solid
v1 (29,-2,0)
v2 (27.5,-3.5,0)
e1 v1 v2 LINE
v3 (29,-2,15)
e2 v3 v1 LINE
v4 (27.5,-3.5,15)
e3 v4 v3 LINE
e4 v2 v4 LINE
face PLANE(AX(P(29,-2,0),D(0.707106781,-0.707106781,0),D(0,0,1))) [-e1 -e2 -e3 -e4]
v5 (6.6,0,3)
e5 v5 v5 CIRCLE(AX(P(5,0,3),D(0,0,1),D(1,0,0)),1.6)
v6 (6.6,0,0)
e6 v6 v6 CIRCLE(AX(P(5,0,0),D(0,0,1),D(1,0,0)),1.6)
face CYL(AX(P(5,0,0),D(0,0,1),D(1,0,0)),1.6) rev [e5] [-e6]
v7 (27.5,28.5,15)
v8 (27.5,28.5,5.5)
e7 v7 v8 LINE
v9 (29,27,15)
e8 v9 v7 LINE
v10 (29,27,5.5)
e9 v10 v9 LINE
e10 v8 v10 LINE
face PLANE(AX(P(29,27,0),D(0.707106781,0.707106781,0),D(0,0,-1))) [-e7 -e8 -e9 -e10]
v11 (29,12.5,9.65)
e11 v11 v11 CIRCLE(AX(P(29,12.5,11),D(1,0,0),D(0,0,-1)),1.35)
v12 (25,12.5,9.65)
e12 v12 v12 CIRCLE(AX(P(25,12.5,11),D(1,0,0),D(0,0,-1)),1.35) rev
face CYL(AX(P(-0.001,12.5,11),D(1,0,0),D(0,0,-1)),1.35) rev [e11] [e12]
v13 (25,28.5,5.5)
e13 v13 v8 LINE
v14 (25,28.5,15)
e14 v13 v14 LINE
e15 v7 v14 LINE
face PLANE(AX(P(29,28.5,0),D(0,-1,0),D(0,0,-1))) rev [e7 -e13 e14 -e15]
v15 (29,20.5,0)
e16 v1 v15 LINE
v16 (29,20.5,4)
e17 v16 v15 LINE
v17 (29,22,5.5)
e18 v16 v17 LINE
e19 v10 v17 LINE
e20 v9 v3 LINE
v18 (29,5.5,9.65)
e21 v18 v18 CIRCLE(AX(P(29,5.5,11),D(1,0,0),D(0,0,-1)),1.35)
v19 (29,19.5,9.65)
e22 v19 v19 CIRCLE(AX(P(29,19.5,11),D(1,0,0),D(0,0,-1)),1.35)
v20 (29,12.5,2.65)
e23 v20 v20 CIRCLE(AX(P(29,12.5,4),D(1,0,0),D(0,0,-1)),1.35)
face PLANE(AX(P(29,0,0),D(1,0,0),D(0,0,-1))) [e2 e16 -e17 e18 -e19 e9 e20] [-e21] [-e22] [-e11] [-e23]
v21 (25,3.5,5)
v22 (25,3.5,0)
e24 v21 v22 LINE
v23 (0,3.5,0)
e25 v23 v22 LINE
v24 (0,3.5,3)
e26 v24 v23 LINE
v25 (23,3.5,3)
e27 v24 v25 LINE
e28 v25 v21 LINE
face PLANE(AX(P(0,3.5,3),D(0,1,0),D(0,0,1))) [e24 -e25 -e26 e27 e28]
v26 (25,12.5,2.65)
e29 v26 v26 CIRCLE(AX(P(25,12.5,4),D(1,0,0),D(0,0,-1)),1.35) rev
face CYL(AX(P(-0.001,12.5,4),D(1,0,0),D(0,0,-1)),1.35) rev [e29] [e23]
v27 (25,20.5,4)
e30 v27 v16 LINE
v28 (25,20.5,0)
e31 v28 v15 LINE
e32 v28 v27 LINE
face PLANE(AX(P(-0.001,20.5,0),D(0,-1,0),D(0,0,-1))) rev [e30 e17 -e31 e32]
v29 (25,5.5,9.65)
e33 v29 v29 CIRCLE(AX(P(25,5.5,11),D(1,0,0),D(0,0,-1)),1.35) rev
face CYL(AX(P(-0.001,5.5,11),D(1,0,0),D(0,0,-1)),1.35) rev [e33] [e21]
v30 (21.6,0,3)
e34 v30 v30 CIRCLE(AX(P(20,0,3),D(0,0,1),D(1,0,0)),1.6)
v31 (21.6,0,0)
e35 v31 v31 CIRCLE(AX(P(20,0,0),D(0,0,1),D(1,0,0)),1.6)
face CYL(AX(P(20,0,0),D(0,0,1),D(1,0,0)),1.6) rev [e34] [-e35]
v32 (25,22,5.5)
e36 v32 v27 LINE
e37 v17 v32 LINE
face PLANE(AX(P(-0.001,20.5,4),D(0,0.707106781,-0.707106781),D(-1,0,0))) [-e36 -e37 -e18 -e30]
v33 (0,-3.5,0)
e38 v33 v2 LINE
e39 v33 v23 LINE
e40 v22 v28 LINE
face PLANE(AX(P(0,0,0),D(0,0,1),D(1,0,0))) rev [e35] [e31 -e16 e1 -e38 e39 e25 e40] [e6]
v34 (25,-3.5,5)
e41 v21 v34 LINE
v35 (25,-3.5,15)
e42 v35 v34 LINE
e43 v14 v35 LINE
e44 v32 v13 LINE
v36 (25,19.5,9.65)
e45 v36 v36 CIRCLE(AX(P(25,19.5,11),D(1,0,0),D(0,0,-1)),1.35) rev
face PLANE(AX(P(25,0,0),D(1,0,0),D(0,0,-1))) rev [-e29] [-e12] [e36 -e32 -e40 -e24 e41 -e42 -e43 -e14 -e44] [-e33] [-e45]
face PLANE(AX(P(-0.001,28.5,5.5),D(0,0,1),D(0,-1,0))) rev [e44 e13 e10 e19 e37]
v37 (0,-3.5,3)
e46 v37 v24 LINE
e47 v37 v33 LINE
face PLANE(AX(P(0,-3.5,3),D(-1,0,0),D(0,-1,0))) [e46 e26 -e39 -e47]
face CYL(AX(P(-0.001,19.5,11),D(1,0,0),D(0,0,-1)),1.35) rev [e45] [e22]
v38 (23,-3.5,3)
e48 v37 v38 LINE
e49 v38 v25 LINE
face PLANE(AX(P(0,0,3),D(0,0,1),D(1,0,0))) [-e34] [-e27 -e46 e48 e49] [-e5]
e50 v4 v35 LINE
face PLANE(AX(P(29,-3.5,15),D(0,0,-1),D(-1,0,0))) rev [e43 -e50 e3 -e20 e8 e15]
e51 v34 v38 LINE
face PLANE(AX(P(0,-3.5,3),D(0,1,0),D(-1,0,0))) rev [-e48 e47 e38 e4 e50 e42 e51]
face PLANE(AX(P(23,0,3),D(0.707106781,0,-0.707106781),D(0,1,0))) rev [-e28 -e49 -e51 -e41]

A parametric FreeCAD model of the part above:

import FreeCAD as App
import Part
import Sketcher

V = App.Vector


def edges_at(feature, points):
    """Names of the edges that pass closest to the given points."""
    edges = feature.Shape.Edges
    near = lambda p: min(range(len(edges)), key=lambda i: edges[i].distToShape(Part.Vertex(*p))[0])
    return sorted({f"Edge{near(p) + 1}" for p in points})

doc = App.newDocument("Part")
params = doc.addObject("Spreadsheet::Sheet", "Params")
for row, (alias, value) in enumerate([
    ("sketch1_width", "25 mm"),
    ("sketch1_height", "7 mm"),
    ("pad1_length", "3 mm"),
    ("sketch2_width", "32 mm"),
    ("sketch2_height", "15 mm"),
    ("pad2_length", "4 mm"),
    ("sketch3_diameter", "3.2 mm"),
    ("sketch4_width", "8 mm"),
    ("sketch4_height", "5.5 mm"),
    ("sketch5_diameter", "2.7 mm"),
    ("sketch6_diameter", "2.7 mm"),
    ("sketch7_diameter", "2.7 mm"),
    ("sketch8_diameter", "2.7 mm"),
    ("chamfer_size", "1.5 mm"),
    ("chamfer2_size", "2 mm"),
], start=1):
    params.set(f"A{row}", alias)
    params.set(f"B{row}", "=" + value)
    params.setAlias(f"B{row}", alias)

body = doc.addObject("PartDesign::Body", "Body")

# Sketch on XY plane
sketch1 = body.newObject("Sketcher::SketchObject", "Sketch")
sketch1.AttachmentSupport = (doc.getObject("XY_Plane"), [""])
sketch1.MapMode = "FlatFace"
sketch1.addGeometry(Part.LineSegment(V(0, 4, 0), V(0, -4, 0)), False)
sketch1.addGeometry(Part.LineSegment(V(0, -4, 0), V(25, -4, 0)), False)
sketch1.addGeometry(Part.LineSegment(V(25, -4, 0), V(25, 4, 0)), False)
sketch1.addGeometry(Part.LineSegment(V(25, 4, 0), V(0, 4, 0)), False)
sketch1.addConstraint(Sketcher.Constraint("Coincident", 0, 2, 1, 1))
sketch1.addConstraint(Sketcher.Constraint("Coincident", 1, 2, 2, 1))
sketch1.addConstraint(Sketcher.Constraint("Coincident", 2, 2, 3, 1))
sketch1.addConstraint(Sketcher.Constraint("Coincident", 3, 2, 0, 1))
sketch1.addConstraint(Sketcher.Constraint("Vertical", 0))
sketch1.addConstraint(Sketcher.Constraint("Horizontal", 1))
sketch1.addConstraint(Sketcher.Constraint("Vertical", 2))
sketch1.addConstraint(Sketcher.Constraint("Horizontal", 3))
sketch1.addConstraint(Sketcher.Constraint("Symmetric", 0, 2, 3, 2, -1, 1))
sketch1.addConstraint(Sketcher.Constraint("DistanceX", 1, 1, 1, 2, 25.0))
sketch1.addConstraint(Sketcher.Constraint("DistanceY", 0, 2, 0, 1, 7.0))
sketch1.setExpression("Constraints[9]", "Params.sketch1_width")
sketch1.setExpression("Constraints[10]", "Params.sketch1_height")
pad1 = body.newObject("PartDesign::Pad", "Pad")
pad1.Profile = sketch1
pad1.setExpression("Length", "Params.pad1_length")

# Sketch on YZ plane
sketch2 = body.newObject("Sketcher::SketchObject", "Sketch001")
sketch2.AttachmentSupport = (doc.getObject("YZ_Plane"), [""])
sketch2.MapMode = "FlatFace"
sketch2.AttachmentOffset = App.Placement(V(0, 0, 25), App.Rotation())
sketch2.addGeometry(Part.LineSegment(V(28, 15, 0), V(-4, 15, 0)), False)
sketch2.addGeometry(Part.LineSegment(V(-4, 15, 0), V(-4, 0, 0)), False)
sketch2.addGeometry(Part.LineSegment(V(-4, 0, 0), V(28, 0, 0)), False)
sketch2.addGeometry(Part.LineSegment(V(28, 0, 0), V(28, 15, 0)), False)
sketch2.addConstraint(Sketcher.Constraint("Coincident", 0, 2, 1, 1))
sketch2.addConstraint(Sketcher.Constraint("Coincident", 1, 2, 2, 1))
sketch2.addConstraint(Sketcher.Constraint("Coincident", 2, 2, 3, 1))
sketch2.addConstraint(Sketcher.Constraint("Coincident", 3, 2, 0, 1))
sketch2.addConstraint(Sketcher.Constraint("Horizontal", 0))
sketch2.addConstraint(Sketcher.Constraint("Vertical", 1))
sketch2.addConstraint(Sketcher.Constraint("Horizontal", 2))
sketch2.addConstraint(Sketcher.Constraint("Vertical", 3))
sketch2.addConstraint(Sketcher.Constraint("PointOnObject", 1, 2, -1))
sketch2.addConstraint(Sketcher.Constraint("DistanceX", 0, 2, 0, 1, 32.0))
sketch2.addConstraint(Sketcher.Constraint("DistanceY", 1, 2, 1, 1, 15.0))
sketch2.addConstraint(Sketcher.Constraint("DistanceX", 0, 2, -1, 1, 3.5))
sketch2.setExpression("Constraints[9]", "Params.sketch2_width")
sketch2.setExpression("Constraints[10]", "Params.sketch2_height")
pad2 = body.newObject("PartDesign::Pad", "Pad001")
pad2.Profile = sketch2
pad2.setExpression("Length", "Params.pad2_length")

# Sketch on XY plane
sketch3 = body.newObject("Sketcher::SketchObject", "Sketch002")
sketch3.AttachmentSupport = (doc.getObject("XY_Plane"), [""])
sketch3.MapMode = "FlatFace"
sketch3.AttachmentOffset = App.Placement(V(0, 0, 3), App.Rotation())
sketch3.addGeometry(Part.Circle(V(5, 0, 0), V(0, 0, 1), 1.6), False)
sketch3.addGeometry(Part.Circle(V(20, 0, 0), V(0, 0, 1), 1.6), False)
sketch3.addConstraint(Sketcher.Constraint("Equal", 0, 1))
sketch3.addConstraint(Sketcher.Constraint("PointOnObject", 0, 3, -1))
sketch3.addConstraint(Sketcher.Constraint("PointOnObject", 1, 3, -1))
sketch3.addConstraint(Sketcher.Constraint("Diameter", 0, 3.2))
sketch3.addConstraint(Sketcher.Constraint("DistanceX", -1, 1, 0, 3, 5.0))
sketch3.addConstraint(Sketcher.Constraint("DistanceX", -1, 1, 1, 3, 20.0))
sketch3.setExpression("Constraints[3]", "Params.sketch3_diameter")
pocket1 = body.newObject("PartDesign::Pocket", "Pocket")
pocket1.Profile = sketch3
pocket1.Type = "ThroughAll"

# Sketch on YZ plane
sketch4 = body.newObject("Sketcher::SketchObject", "Sketch003")
sketch4.AttachmentSupport = (doc.getObject("YZ_Plane"), [""])
sketch4.MapMode = "FlatFace"
sketch4.AttachmentOffset = App.Placement(V(0, 0, 29), App.Rotation())
sketch4.addGeometry(Part.LineSegment(V(28, 6, 0), V(20, 6, 0)), False)
sketch4.addGeometry(Part.LineSegment(V(20, 6, 0), V(20, 0, 0)), False)
sketch4.addGeometry(Part.LineSegment(V(20, 0, 0), V(28, 0, 0)), False)
sketch4.addGeometry(Part.LineSegment(V(28, 0, 0), V(28, 6, 0)), False)
sketch4.addConstraint(Sketcher.Constraint("Coincident", 0, 2, 1, 1))
sketch4.addConstraint(Sketcher.Constraint("Coincident", 1, 2, 2, 1))
sketch4.addConstraint(Sketcher.Constraint("Coincident", 2, 2, 3, 1))
sketch4.addConstraint(Sketcher.Constraint("Coincident", 3, 2, 0, 1))
sketch4.addConstraint(Sketcher.Constraint("Horizontal", 0))
sketch4.addConstraint(Sketcher.Constraint("Vertical", 1))
sketch4.addConstraint(Sketcher.Constraint("Horizontal", 2))
sketch4.addConstraint(Sketcher.Constraint("Vertical", 3))
sketch4.addConstraint(Sketcher.Constraint("PointOnObject", 1, 2, -1))
sketch4.addConstraint(Sketcher.Constraint("DistanceX", 0, 2, 0, 1, 8.0))
sketch4.addConstraint(Sketcher.Constraint("DistanceY", 1, 2, 1, 1, 5.5))
sketch4.addConstraint(Sketcher.Constraint("DistanceX", -1, 1, 0, 2, 20.5))
sketch4.setExpression("Constraints[9]", "Params.sketch4_width")
sketch4.setExpression("Constraints[10]", "Params.sketch4_height")
pocket2 = body.newObject("PartDesign::Pocket", "Pocket001")
pocket2.Profile = sketch4
pocket2.Type = "UpToFirst"

# Sketch on YZ plane
sketch5 = body.newObject("Sketcher::SketchObject", "Sketch004")
sketch5.AttachmentSupport = (doc.getObject("YZ_Plane"), [""])
sketch5.MapMode = "FlatFace"
sketch5.AttachmentOffset = App.Placement(V(0, 0, 29), App.Rotation())
sketch5.addGeometry(Part.Circle(V(12.5, 11, 0), V(0, 0, 1), 1.4), False)
sketch5.addConstraint(Sketcher.Constraint("Diameter", 0, 2.7))
sketch5.addConstraint(Sketcher.Constraint("DistanceY", -1, 1, 0, 3, 11.0))
sketch5.addConstraint(Sketcher.Constraint("DistanceX", -1, 1, 0, 3, 12.5))
sketch5.setExpression("Constraints[0]", "Params.sketch5_diameter")
pocket3 = body.newObject("PartDesign::Pocket", "Pocket002")
pocket3.Profile = sketch5
pocket3.Type = "UpToFirst"

# Sketch on YZ plane
sketch6 = body.newObject("Sketcher::SketchObject", "Sketch005")
sketch6.AttachmentSupport = (doc.getObject("YZ_Plane"), [""])
sketch6.MapMode = "FlatFace"
sketch6.AttachmentOffset = App.Placement(V(0, 0, 29), App.Rotation())
sketch6.addGeometry(Part.Circle(V(12.5, 4, 0), V(0, 0, 1), 1.4), False)
sketch6.addConstraint(Sketcher.Constraint("Diameter", 0, 2.7))
sketch6.addConstraint(Sketcher.Constraint("DistanceY", -1, 1, 0, 3, 4.0))
sketch6.addConstraint(Sketcher.Constraint("DistanceX", -1, 1, 0, 3, 12.5))
sketch6.setExpression("Constraints[0]", "Params.sketch6_diameter")
pocket4 = body.newObject("PartDesign::Pocket", "Pocket003")
pocket4.Profile = sketch6
pocket4.Type = "UpToFirst"

# Sketch on YZ plane
sketch7 = body.newObject("Sketcher::SketchObject", "Sketch006")
sketch7.AttachmentSupport = (doc.getObject("YZ_Plane"), [""])
sketch7.MapMode = "FlatFace"
sketch7.AttachmentOffset = App.Placement(V(0, 0, 29), App.Rotation())
sketch7.addGeometry(Part.Circle(V(5.5, 11, 0), V(0, 0, 1), 1.4), False)
sketch7.addConstraint(Sketcher.Constraint("Diameter", 0, 2.7))
sketch7.addConstraint(Sketcher.Constraint("DistanceY", -1, 1, 0, 3, 11.0))
sketch7.addConstraint(Sketcher.Constraint("DistanceX", -1, 1, 0, 3, 5.5))
sketch7.setExpression("Constraints[0]", "Params.sketch7_diameter")
pocket5 = body.newObject("PartDesign::Pocket", "Pocket004")
pocket5.Profile = sketch7
pocket5.Type = "UpToFirst"

# Sketch on YZ plane
sketch8 = body.newObject("Sketcher::SketchObject", "Sketch007")
sketch8.AttachmentSupport = (doc.getObject("YZ_Plane"), [""])
sketch8.MapMode = "FlatFace"
sketch8.AttachmentOffset = App.Placement(V(0, 0, 29), App.Rotation())
sketch8.addGeometry(Part.Circle(V(19.5, 11, 0), V(0, 0, 1), 1.4), False)
sketch8.addConstraint(Sketcher.Constraint("Diameter", 0, 2.7))
sketch8.addConstraint(Sketcher.Constraint("DistanceY", -1, 1, 0, 3, 11.0))
sketch8.addConstraint(Sketcher.Constraint("DistanceX", -1, 1, 0, 3, 19.5))
sketch8.setExpression("Constraints[0]", "Params.sketch8_diameter")
pocket6 = body.newObject("PartDesign::Pocket", "Pocket005")
pocket6.Profile = sketch8
pocket6.Type = "UpToFirst"
doc.recompute()

chamfer = body.newObject("PartDesign::Chamfer", "Chamfer")
chamfer.Base = (pocket6, edges_at(pocket6, [(29, -3.5, 7.5), (29, 28.5, 10.25), (27, 20.5, 5.5)]))
chamfer.setExpression("Size", "Params.chamfer_size")
doc.recompute()

chamfer2 = body.newObject("PartDesign::Chamfer", "Chamfer001")
chamfer2.Base = (chamfer, edges_at(chamfer, [(25, 0, 3)]))
chamfer2.setExpression("Size", "Params.chamfer2_size")

doc.recompute()
